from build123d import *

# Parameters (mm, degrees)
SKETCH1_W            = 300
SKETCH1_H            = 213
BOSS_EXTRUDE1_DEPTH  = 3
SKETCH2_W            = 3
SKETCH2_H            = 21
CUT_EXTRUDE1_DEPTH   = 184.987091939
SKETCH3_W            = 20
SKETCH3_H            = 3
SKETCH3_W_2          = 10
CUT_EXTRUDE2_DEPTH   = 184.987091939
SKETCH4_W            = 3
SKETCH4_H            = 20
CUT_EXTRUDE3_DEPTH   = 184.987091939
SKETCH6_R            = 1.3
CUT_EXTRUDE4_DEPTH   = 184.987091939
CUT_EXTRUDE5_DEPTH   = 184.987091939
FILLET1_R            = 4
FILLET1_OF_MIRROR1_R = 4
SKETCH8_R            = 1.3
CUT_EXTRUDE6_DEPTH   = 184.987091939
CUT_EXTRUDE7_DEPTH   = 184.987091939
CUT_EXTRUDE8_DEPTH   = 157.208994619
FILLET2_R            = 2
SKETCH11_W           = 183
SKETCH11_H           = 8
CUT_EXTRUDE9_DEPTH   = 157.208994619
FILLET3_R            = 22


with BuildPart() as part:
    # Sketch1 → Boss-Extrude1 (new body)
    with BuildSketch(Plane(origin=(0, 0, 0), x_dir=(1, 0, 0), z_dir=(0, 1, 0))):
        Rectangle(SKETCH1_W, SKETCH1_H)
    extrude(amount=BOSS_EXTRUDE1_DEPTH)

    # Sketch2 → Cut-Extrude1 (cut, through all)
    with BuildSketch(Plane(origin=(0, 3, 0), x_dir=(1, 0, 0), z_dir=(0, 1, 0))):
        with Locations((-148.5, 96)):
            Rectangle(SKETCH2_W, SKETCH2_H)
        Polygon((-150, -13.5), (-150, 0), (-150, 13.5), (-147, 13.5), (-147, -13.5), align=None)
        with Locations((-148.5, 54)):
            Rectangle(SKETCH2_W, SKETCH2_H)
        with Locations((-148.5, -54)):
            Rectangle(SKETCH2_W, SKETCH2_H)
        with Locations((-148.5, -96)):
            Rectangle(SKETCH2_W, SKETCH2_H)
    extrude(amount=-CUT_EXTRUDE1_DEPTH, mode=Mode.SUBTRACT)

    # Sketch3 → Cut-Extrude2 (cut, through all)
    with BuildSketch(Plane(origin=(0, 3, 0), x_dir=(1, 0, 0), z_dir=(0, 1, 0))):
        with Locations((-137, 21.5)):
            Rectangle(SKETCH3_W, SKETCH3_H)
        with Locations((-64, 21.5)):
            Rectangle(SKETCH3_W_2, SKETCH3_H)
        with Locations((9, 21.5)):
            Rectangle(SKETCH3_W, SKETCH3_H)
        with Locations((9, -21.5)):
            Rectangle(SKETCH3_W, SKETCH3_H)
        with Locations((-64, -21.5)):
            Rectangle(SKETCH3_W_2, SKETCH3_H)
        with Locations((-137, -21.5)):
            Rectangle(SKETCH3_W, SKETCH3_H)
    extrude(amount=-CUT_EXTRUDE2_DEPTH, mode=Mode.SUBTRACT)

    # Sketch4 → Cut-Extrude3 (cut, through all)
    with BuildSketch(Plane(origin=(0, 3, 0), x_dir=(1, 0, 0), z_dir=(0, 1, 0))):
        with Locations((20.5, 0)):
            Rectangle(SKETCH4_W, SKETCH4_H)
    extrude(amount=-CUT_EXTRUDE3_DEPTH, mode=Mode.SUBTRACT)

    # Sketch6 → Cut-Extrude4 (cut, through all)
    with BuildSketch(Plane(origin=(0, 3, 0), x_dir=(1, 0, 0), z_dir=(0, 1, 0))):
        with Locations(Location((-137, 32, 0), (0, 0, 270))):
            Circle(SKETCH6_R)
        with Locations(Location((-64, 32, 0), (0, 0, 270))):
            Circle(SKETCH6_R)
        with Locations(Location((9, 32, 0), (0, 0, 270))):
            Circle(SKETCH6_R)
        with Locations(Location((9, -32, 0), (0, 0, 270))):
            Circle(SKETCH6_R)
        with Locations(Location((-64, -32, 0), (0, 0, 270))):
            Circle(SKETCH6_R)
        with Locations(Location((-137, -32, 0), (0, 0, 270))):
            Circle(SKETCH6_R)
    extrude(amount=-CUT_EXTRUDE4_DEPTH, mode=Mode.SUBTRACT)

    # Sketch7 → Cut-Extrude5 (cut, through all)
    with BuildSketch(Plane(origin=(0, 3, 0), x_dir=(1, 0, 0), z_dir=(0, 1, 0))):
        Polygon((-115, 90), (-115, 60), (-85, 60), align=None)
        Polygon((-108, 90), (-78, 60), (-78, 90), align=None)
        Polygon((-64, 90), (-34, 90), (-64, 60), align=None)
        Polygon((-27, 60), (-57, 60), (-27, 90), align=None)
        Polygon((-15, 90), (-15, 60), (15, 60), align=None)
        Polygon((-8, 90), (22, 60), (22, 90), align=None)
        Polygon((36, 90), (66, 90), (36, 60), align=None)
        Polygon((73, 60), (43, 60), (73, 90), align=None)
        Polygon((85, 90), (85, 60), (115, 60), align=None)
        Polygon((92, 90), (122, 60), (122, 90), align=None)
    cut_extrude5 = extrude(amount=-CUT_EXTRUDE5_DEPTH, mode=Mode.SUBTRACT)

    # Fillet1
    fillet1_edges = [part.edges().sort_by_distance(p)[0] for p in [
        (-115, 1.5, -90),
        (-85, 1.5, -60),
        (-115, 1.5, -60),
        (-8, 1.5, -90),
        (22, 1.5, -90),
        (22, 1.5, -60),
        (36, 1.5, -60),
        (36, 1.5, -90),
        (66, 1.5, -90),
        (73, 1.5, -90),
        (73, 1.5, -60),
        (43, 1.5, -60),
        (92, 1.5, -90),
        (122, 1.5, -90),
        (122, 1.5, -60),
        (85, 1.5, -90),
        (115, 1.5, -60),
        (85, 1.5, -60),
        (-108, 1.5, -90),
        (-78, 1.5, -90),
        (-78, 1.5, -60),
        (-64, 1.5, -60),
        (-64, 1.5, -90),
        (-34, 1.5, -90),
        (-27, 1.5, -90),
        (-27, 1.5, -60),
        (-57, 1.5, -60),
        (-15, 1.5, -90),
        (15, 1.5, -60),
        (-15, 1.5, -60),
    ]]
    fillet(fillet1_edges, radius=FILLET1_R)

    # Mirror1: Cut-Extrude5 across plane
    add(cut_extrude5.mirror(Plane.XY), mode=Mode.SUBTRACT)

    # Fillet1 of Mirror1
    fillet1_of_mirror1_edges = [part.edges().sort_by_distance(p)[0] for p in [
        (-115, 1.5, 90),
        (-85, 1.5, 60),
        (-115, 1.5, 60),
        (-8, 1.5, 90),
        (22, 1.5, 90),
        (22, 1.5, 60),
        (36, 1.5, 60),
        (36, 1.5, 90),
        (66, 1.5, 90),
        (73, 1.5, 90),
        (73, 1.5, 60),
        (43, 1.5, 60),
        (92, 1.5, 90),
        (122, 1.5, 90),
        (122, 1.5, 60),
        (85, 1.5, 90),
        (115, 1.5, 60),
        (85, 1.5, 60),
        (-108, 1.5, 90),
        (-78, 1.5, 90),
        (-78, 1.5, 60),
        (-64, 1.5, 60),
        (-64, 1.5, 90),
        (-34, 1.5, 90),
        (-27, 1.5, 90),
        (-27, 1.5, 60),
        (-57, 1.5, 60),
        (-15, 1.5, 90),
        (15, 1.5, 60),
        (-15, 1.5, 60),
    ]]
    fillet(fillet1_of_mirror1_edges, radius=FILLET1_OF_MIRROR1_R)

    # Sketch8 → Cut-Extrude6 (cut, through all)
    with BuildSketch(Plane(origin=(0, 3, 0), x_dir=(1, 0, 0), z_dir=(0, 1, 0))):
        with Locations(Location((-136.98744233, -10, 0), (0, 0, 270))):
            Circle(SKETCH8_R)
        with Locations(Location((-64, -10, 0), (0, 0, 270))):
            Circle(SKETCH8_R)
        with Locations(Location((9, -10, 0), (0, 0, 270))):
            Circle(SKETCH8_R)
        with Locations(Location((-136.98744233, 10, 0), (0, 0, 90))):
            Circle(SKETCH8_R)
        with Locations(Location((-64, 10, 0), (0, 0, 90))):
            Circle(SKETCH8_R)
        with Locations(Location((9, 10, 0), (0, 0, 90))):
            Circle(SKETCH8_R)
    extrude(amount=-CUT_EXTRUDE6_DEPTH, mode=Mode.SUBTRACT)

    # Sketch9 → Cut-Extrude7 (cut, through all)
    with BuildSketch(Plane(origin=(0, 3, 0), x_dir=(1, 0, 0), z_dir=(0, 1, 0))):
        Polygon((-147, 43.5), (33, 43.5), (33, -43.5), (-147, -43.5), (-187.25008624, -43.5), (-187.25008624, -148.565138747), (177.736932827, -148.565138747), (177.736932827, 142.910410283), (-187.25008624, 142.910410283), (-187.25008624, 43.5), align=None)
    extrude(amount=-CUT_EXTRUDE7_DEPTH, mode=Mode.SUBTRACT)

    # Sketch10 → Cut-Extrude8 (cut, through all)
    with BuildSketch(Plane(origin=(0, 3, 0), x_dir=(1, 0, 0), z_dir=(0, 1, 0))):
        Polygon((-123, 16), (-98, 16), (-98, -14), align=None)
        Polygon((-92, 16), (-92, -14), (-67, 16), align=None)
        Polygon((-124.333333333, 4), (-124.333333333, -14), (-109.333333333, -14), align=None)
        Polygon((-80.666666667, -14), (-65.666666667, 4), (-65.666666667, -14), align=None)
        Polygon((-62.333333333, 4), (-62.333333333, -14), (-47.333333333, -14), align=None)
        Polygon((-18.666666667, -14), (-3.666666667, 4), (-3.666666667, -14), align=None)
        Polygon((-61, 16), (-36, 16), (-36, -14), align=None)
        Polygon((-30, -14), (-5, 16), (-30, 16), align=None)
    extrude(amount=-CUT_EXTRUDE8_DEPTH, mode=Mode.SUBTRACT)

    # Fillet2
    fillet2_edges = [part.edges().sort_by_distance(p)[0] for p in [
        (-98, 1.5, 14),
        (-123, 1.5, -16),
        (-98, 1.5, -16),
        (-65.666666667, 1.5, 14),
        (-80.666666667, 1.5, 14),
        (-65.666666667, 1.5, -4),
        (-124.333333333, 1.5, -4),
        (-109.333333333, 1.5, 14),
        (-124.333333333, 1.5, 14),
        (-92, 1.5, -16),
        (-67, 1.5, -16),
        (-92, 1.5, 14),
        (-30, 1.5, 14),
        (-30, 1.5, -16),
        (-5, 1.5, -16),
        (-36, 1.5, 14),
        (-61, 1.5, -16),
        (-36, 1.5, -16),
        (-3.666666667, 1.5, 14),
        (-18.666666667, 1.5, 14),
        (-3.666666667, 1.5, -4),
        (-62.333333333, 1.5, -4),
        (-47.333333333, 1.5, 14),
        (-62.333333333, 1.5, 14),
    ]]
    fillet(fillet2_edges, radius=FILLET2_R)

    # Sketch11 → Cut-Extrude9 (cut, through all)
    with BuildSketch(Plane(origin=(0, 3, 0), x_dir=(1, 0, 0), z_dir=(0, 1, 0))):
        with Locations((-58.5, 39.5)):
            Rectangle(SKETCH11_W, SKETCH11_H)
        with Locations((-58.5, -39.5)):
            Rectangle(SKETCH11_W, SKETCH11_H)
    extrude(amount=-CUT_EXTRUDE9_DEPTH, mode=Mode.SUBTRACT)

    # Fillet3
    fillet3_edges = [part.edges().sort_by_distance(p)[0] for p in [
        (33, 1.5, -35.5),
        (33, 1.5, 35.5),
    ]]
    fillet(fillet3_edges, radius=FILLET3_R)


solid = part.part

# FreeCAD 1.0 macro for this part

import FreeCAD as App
import Part
import Sketcher
from FreeCAD import Vector
Q = App.Units.Quantity


def edges_at(feature, points):
    """Names of the edges that pass closest to the given points."""
    edges = feature.Shape.Edges
    near = lambda p: min(range(len(edges)), key=lambda i: edges[i].distToShape(Part.Vertex(*p))[0])
    return sorted({f"Edge{near(p) + 1}" for p in points})


def add_polygon(sketch, points):
    """Adds a closed chain of lines whose ends are joined by coincident constraints."""
    first, n = sketch.GeometryCount, len(points)
    for a, b in zip(points, points[1:] + points[:1]):
        sketch.addGeometry(Part.LineSegment(App.Vector(*a, 0), App.Vector(*b, 0)), False)
    for i in range(n):
        sketch.addConstraint(Sketcher.Constraint("Coincident", first + i, 2, first + (i + 1) % n, 1))

doc = App.newDocument("Part")
body = doc.addObject("PartDesign::Body", "Body")

# Sketch on XZ plane
sketch1 = body.newObject("Sketcher::SketchObject", "Sketch")
sketch1.AttachmentSupport = (doc.getObject("XZ_Plane"), [""])
sketch1.MapMode = "FlatFace"
add_polygon(sketch1, [(-150, -106.5), (-150, 106.5), (150, 106.5), (150, -106.5)])  # lines 0-3
sketch1.addConstraint(Sketcher.Constraint("Vertical", 0))
sketch1.addConstraint(Sketcher.Constraint("Horizontal", 1))
sketch1.addConstraint(Sketcher.Constraint("Vertical", 2))
sketch1.addConstraint(Sketcher.Constraint("Horizontal", 3))
sketch1.addConstraint(Sketcher.Constraint("Symmetric", 0, 2, 2, 2, -1, 1))
sketch1.addConstraint(Sketcher.Constraint("DistanceX", 1, 1, 1, 2, Q("300 mm")))
sketch1.addConstraint(Sketcher.Constraint("DistanceY", 0, 1, 0, 2, Q("213 mm")))
pad1 = body.newObject("PartDesign::Pad", "Pad")
pad1.Profile = sketch1
pad1.Length = 3
pad1.Reversed = True

# Sketch on XZ plane
sketch2 = body.newObject("Sketcher::SketchObject", "Sketch001")
sketch2.AttachmentSupport = (doc.getObject("XZ_Plane"), [""])
sketch2.MapMode = "FlatFace"
sketch2.AttachmentOffset = App.Placement(Vector(0, 0, -3), App.Rotation())
add_polygon(sketch2, [(-150, -106.5), (-150, -85.5), (-147, -85.5), (-147, -106.5)])  # lines 0-3
add_polygon(sketch2, [(-150, -13.5), (-150, 13.5), (-147, 13.5), (-147, -13.5)])  # lines 4-7
add_polygon(sketch2, [(-150, -64.5), (-150, -43.5), (-147, -43.5), (-147, -64.5)])  # lines 8-11
add_polygon(sketch2, [(-150, 43.5), (-150, 64.5), (-147, 64.5), (-147, 43.5)])  # lines 12-15
add_polygon(sketch2, [(-150, 85.5), (-150, 106.5), (-147, 106.5), (-147, 85.5)])  # lines 16-19
sketch2.addConstraint(Sketcher.Constraint("Vertical", 0))
sketch2.addConstraint(Sketcher.Constraint("Horizontal", 1))
sketch2.addConstraint(Sketcher.Constraint("Vertical", 2))
sketch2.addConstraint(Sketcher.Constraint("Horizontal", 3))
sketch2.addConstraint(Sketcher.Constraint("Vertical", 4))
sketch2.addConstraint(Sketcher.Constraint("Horizontal", 5))
sketch2.addConstraint(Sketcher.Constraint("Vertical", 6))
sketch2.addConstraint(Sketcher.Constraint("Horizontal", 7))
sketch2.addConstraint(Sketcher.Constraint("Vertical", 8))
sketch2.addConstraint(Sketcher.Constraint("Horizontal", 9))
sketch2.addConstraint(Sketcher.Constraint("Vertical", 10))
sketch2.addConstraint(Sketcher.Constraint("Horizontal", 11))
sketch2.addConstraint(Sketcher.Constraint("Vertical", 12))
sketch2.addConstraint(Sketcher.Constraint("Horizontal", 13))
sketch2.addConstraint(Sketcher.Constraint("Vertical", 14))
sketch2.addConstraint(Sketcher.Constraint("Horizontal", 15))
sketch2.addConstraint(Sketcher.Constraint("Vertical", 16))
sketch2.addConstraint(Sketcher.Constraint("Horizontal", 17))
sketch2.addConstraint(Sketcher.Constraint("Vertical", 18))
sketch2.addConstraint(Sketcher.Constraint("Horizontal", 19))
sketch2.addConstraint(Sketcher.Constraint("Symmetric", 11, 2, 12, 2, -1))
sketch2.addConstraint(Sketcher.Constraint("Symmetric", 9, 2, 14, 2, -1))
sketch2.addConstraint(Sketcher.Constraint("Symmetric", 3, 2, 16, 2, -1))
sketch2.addConstraint(Sketcher.Constraint("Symmetric", 1, 2, 18, 2, -1))
sketch2.addConstraint(Sketcher.Constraint("Vertical", 3, 2, 4, 2))
sketch2.addConstraint(Sketcher.Constraint("Vertical", 2, 2, 5, 2))
sketch2.addConstraint(Sketcher.Constraint("Vertical", 7, 2, 8, 2))
sketch2.addConstraint(Sketcher.Constraint("Vertical", 6, 2, 9, 2))
sketch2.addConstraint(Sketcher.Constraint("Equal", 2, 8))
sketch2.addConstraint(Sketcher.Constraint("DistanceX", 1, 1, 1, 2, Q("3 mm")))
sketch2.addConstraint(Sketcher.Constraint("DistanceY", 0, 1, 0, 2, Q("21 mm")))
sketch2.addConstraint(Sketcher.Constraint("DistanceY", 4, 1, 4, 2, Q("27 mm")))
sketch2.addConstraint(Sketcher.Constraint("DistanceX", 0, 2, -1, 1, Q("150 mm")))
sketch2.addConstraint(Sketcher.Constraint("DistanceY", 0, 2, 4, 2, Q("99 mm")))
sketch2.addConstraint(Sketcher.Constraint("DistanceY", 8, 2, 7, 2, Q("30 mm")))
sketch2.addConstraint(Sketcher.Constraint("DistanceY", 4, 2, 12, 2, Q("51 mm")))
pocket1 = body.newObject("PartDesign::Pocket", "Pocket")
pocket1.Profile = sketch2
pocket1.Type = "ThroughAll"
pocket1.Reversed = True

# Sketch on XZ plane
sketch3 = body.newObject("Sketcher::SketchObject", "Sketch002")
sketch3.AttachmentSupport = (doc.getObject("XZ_Plane"), [""])
sketch3.MapMode = "FlatFace"
sketch3.AttachmentOffset = App.Placement(Vector(0, 0, -3), App.Rotation())
add_polygon(sketch3, [(-147, -23), (-147, -20), (-127, -20), (-127, -23)])  # lines 0-3
add_polygon(sketch3, [(-69, -23), (-69, -20), (-59, -20), (-59, -23)])  # lines 4-7
add_polygon(sketch3, [(-1, -23), (-1, -20), (19, -20), (19, -23)])  # lines 8-11
add_polygon(sketch3, [(-1, 20), (-1, 23), (19, 23), (19, 20)])  # lines 12-15
add_polygon(sketch3, [(-69, 20), (-69, 23), (-59, 23), (-59, 20)])  # lines 16-19
add_polygon(sketch3, [(-147, 20), (-147, 23), (-127, 23), (-127, 20)])  # lines 20-23
sketch3.addConstraint(Sketcher.Constraint("Vertical", 0))
sketch3.addConstraint(Sketcher.Constraint("Horizontal", 1))
sketch3.addConstraint(Sketcher.Constraint("Vertical", 2))
sketch3.addConstraint(Sketcher.Constraint("Horizontal", 3))
sketch3.addConstraint(Sketcher.Constraint("Vertical", 4))
sketch3.addConstraint(Sketcher.Constraint("Horizontal", 5))
sketch3.addConstraint(Sketcher.Constraint("Vertical", 6))
sketch3.addConstraint(Sketcher.Constraint("Horizontal", 7))
sketch3.addConstraint(Sketcher.Constraint("Vertical", 8))
sketch3.addConstraint(Sketcher.Constraint("Horizontal", 9))
sketch3.addConstraint(Sketcher.Constraint("Vertical", 10))
sketch3.addConstraint(Sketcher.Constraint("Horizontal", 11))
sketch3.addConstraint(Sketcher.Constraint("Vertical", 12))
sketch3.addConstraint(Sketcher.Constraint("Horizontal", 13))
sketch3.addConstraint(Sketcher.Constraint("Vertical", 14))
sketch3.addConstraint(Sketcher.Constraint("Horizontal", 15))
sketch3.addConstraint(Sketcher.Constraint("Vertical", 16))
sketch3.addConstraint(Sketcher.Constraint("Horizontal", 17))
sketch3.addConstraint(Sketcher.Constraint("Vertical", 18))
sketch3.addConstraint(Sketcher.Constraint("Horizontal", 19))
sketch3.addConstraint(Sketcher.Constraint("Vertical", 20))
sketch3.addConstraint(Sketcher.Constraint("Horizontal", 21))
sketch3.addConstraint(Sketcher.Constraint("Vertical", 22))
sketch3.addConstraint(Sketcher.Constraint("Horizontal", 23))
sketch3.addConstraint(Sketcher.Constraint("Symmetric", 11, 2, 12, 2, -1))
sketch3.addConstraint(Sketcher.Constraint("Symmetric", 9, 2, 14, 2, -1))
sketch3.addConstraint(Sketcher.Constraint("Symmetric", 7, 2, 16, 2, -1))
sketch3.addConstraint(Sketcher.Constraint("Symmetric", 5, 2, 18, 2, -1))
sketch3.addConstraint(Sketcher.Constraint("Symmetric", 3, 2, 20, 2, -1))
sketch3.addConstraint(Sketcher.Constraint("Symmetric", 1, 2, 22, 2, -1))
sketch3.addConstraint(Sketcher.Constraint("Horizontal", 1, 2, 4, 2))
sketch3.addConstraint(Sketcher.Constraint("Horizontal", 3, 2, 6, 2))
sketch3.addConstraint(Sketcher.Constraint("Horizontal", 5, 2, 8, 2))
sketch3.addConstraint(Sketcher.Constraint("Horizontal", 7, 2, 10, 2))
sketch3.addConstraint(Sketcher.Constraint("Equal", 3, 9))
sketch3.addConstraint(Sketcher.Constraint("DistanceX", 1, 1, 1, 2, Q("20 mm")))
sketch3.addConstraint(Sketcher.Constraint("DistanceX", 5, 1, 5, 2, Q("10 mm")))
sketch3.addConstraint(Sketcher.Constraint("DistanceY", 0, 1, 0, 2, Q("3 mm")))
sketch3.addConstraint(Sketcher.Constraint("DistanceX", 0, 2, -1, 1, Q("147 mm")))
sketch3.addConstraint(Sketcher.Constraint("DistanceY", 0, 2, -1, 1, Q("20 mm")))
sketch3.addConstraint(Sketcher.Constraint("DistanceX", 4, 2, -1, 1, Q("69 mm")))
sketch3.addConstraint(Sketcher.Constraint("DistanceX", 8, 2, -1, 1, Q("1 mm")))
pocket2 = body.newObject("PartDesign::Pocket", "Pocket001")
pocket2.Profile = sketch3
pocket2.Type = "ThroughAll"
pocket2.Reversed = True

# Sketch on XZ plane
sketch4 = body.newObject("Sketcher::SketchObject", "Sketch003")
sketch4.AttachmentSupport = (doc.getObject("XZ_Plane"), [""])
sketch4.MapMode = "FlatFace"
sketch4.AttachmentOffset = App.Placement(Vector(0, 0, -3), App.Rotation())
add_polygon(sketch4, [(19, -10), (19, 10), (22, 10), (22, -10)])  # lines 0-3
sketch4.addConstraint(Sketcher.Constraint("Vertical", 0))
sketch4.addConstraint(Sketcher.Constraint("Horizontal", 1))
sketch4.addConstraint(Sketcher.Constraint("Vertical", 2))
sketch4.addConstraint(Sketcher.Constraint("Horizontal", 3))
sketch4.addConstraint(Sketcher.Constraint("DistanceX", 1, 1, 1, 2, Q("3 mm")))
sketch4.addConstraint(Sketcher.Constraint("DistanceY", 0, 1, 0, 2, Q("20 mm")))
sketch4.addConstraint(Sketcher.Constraint("DistanceX", -1, 1, 0, 2, Q("19 mm")))
sketch4.addConstraint(Sketcher.Constraint("DistanceY", -1, 1, 0, 2, Q("10 mm")))
pocket3 = body.newObject("PartDesign::Pocket", "Pocket002")
pocket3.Profile = sketch4
pocket3.Type = "ThroughAll"
pocket3.Reversed = True

# Sketch on XZ plane
sketch5 = body.newObject("Sketcher::SketchObject", "Sketch004")
sketch5.AttachmentSupport = (doc.getObject("XZ_Plane"), [""])
sketch5.MapMode = "FlatFace"
sketch5.AttachmentOffset = App.Placement(Vector(0, 0, -3), App.Rotation())
sketch5.addGeometry(Part.Circle(Vector(-137, -32, 0), Vector(0, 0, 1), 1.3), False)
sketch5.addGeometry(Part.Circle(Vector(-64, -32, 0), Vector(0, 0, 1), 1.3), False)
sketch5.addGeometry(Part.Circle(Vector(9, -32, 0), Vector(0, 0, 1), 1.3), False)
sketch5.addGeometry(Part.Circle(Vector(9, 32, 0), Vector(0, 0, 1), 1.3), False)
sketch5.addGeometry(Part.Circle(Vector(-64, 32, 0), Vector(0, 0, 1), 1.3), False)
sketch5.addGeometry(Part.Circle(Vector(-137, 32, 0), Vector(0, 0, 1), 1.3), False)
sketch5.addConstraint(Sketcher.Constraint("Equal", 0, 1))
sketch5.addConstraint(Sketcher.Constraint("Equal", 1, 2))
sketch5.addConstraint(Sketcher.Constraint("Equal", 2, 3))
sketch5.addConstraint(Sketcher.Constraint("Equal", 3, 4))
sketch5.addConstraint(Sketcher.Constraint("Equal", 4, 5))
sketch5.addConstraint(Sketcher.Constraint("Symmetric", 2, 3, 3, 3, -1))
sketch5.addConstraint(Sketcher.Constraint("Symmetric", 1, 3, 4, 3, -1))
sketch5.addConstraint(Sketcher.Constraint("Symmetric", 0, 3, 5, 3, -1))
sketch5.addConstraint(Sketcher.Constraint("Horizontal", 0, 3, 1, 3))
sketch5.addConstraint(Sketcher.Constraint("Horizontal", 1, 3, 2, 3))
sketch5.addConstraint(Sketcher.Constraint("Diameter", 0, Q("2.6 mm")))
sketch5.addConstraint(Sketcher.Constraint("DistanceX", 0, 3, -1, 1, Q("137 mm")))
sketch5.addConstraint(Sketcher.Constraint("DistanceY", 0, 3, -1, 1, Q("32 mm")))
sketch5.addConstraint(Sketcher.Constraint("DistanceX", 1, 3, -1, 1, Q("64 mm")))
sketch5.addConstraint(Sketcher.Constraint("DistanceX", -1, 1, 2, 3, Q("9 mm")))
pocket4 = body.newObject("PartDesign::Pocket", "Pocket003")
pocket4.Profile = sketch5
pocket4.Type = "ThroughAll"
pocket4.Reversed = True

# Sketch on XZ plane
sketch6 = body.newObject("Sketcher::SketchObject", "Sketch005")
sketch6.AttachmentSupport = (doc.getObject("XZ_Plane"), [""])
sketch6.MapMode = "FlatFace"
sketch6.AttachmentOffset = App.Placement(Vector(0, 0, -3), App.Rotation())
add_polygon(sketch6, [(-115, -90), (-115, -60), (-85, -60)])  # lines 0-2
add_polygon(sketch6, [(-108, -90), (-78, -60), (-78, -90)])  # lines 3-5
add_polygon(sketch6, [(-34, -90), (-64, -90), (-64, -60)])  # lines 6-8
add_polygon(sketch6, [(-57, -60), (-27, -60), (-27, -90)])  # lines 9-11
add_polygon(sketch6, [(-15, -90), (-15, -60), (15, -60)])  # lines 12-14
add_polygon(sketch6, [(-8, -90), (22, -60), (22, -90)])  # lines 15-17
add_polygon(sketch6, [(66, -90), (36, -90), (36, -60)])  # lines 18-20
add_polygon(sketch6, [(43, -60), (73, -60), (73, -90)])  # lines 21-23
add_polygon(sketch6, [(85, -90), (85, -60), (115, -60)])  # lines 24-26
add_polygon(sketch6, [(92, -90), (122, -60), (122, -90)])  # lines 27-29
sketch6.addConstraint(Sketcher.Constraint("Vertical", 0))
sketch6.addConstraint(Sketcher.Constraint("Horizontal", 1))
sketch6.addConstraint(Sketcher.Constraint("Vertical", 4))
sketch6.addConstraint(Sketcher.Constraint("Horizontal", 5))
sketch6.addConstraint(Sketcher.Constraint("Horizontal", 6))
sketch6.addConstraint(Sketcher.Constraint("Vertical", 7))
sketch6.addConstraint(Sketcher.Constraint("Horizontal", 9))
sketch6.addConstraint(Sketcher.Constraint("Vertical", 10))
sketch6.addConstraint(Sketcher.Constraint("Vertical", 12))
sketch6.addConstraint(Sketcher.Constraint("Horizontal", 13))
sketch6.addConstraint(Sketcher.Constraint("Vertical", 16))
sketch6.addConstraint(Sketcher.Constraint("Horizontal", 17))
sketch6.addConstraint(Sketcher.Constraint("Horizontal", 18))
sketch6.addConstraint(Sketcher.Constraint("Vertical", 19))
sketch6.addConstraint(Sketcher.Constraint("Horizontal", 21))
sketch6.addConstraint(Sketcher.Constraint("Vertical", 22))
sketch6.addConstraint(Sketcher.Constraint("Vertical", 24))
sketch6.addConstraint(Sketcher.Constraint("Horizontal", 25))
sketch6.addConstraint(Sketcher.Constraint("Vertical", 28))
sketch6.addConstraint(Sketcher.Constraint("Horizontal", 29))
sketch6.addConstraint(Sketcher.Constraint("Symmetric", 1, 2, 24, 2, -2))
sketch6.addConstraint(Sketcher.Constraint("Parallel", 2, 3))
sketch6.addConstraint(Sketcher.Constraint("Perpendicular", 3, 8))
sketch6.addConstraint(Sketcher.Constraint("Parallel", 8, 11))
sketch6.addConstraint(Sketcher.Constraint("Perpendicular", 11, 14))
sketch6.addConstraint(Sketcher.Constraint("Parallel", 14, 15))
sketch6.addConstraint(Sketcher.Constraint("Perpendicular", 15, 20))
sketch6.addConstraint(Sketcher.Constraint("Parallel", 20, 23))
sketch6.addConstraint(Sketcher.Constraint("Perpendicular", 23, 26))
sketch6.addConstraint(Sketcher.Constraint("Parallel", 26, 27))
sketch6.addConstraint(Sketcher.Constraint("Horizontal", 1, 2, 3, 2))
sketch6.addConstraint(Sketcher.Constraint("Horizontal", 2, 2, 4, 2))
sketch6.addConstraint(Sketcher.Constraint("Horizontal", 5, 2, 6, 2))
sketch6.addConstraint(Sketcher.Constraint("Horizontal", 3, 2, 7, 2))
sketch6.addConstraint(Sketcher.Constraint("Horizontal", 7, 2, 9, 2))
sketch6.addConstraint(Sketcher.Constraint("Horizontal", 8, 2, 10, 2))
sketch6.addConstraint(Sketcher.Constraint("Horizontal", 11, 2, 12, 2))
sketch6.addConstraint(Sketcher.Constraint("Horizontal", 10, 2, 14, 2))
sketch6.addConstraint(Sketcher.Constraint("Horizontal", 13, 2, 15, 2))
sketch6.addConstraint(Sketcher.Constraint("Horizontal", 14, 2, 16, 2))
sketch6.addConstraint(Sketcher.Constraint("Horizontal", 17, 2, 18, 2))
sketch6.addConstraint(Sketcher.Constraint("Horizontal", 15, 2, 19, 2))
sketch6.addConstraint(Sketcher.Constraint("Horizontal", 19, 2, 21, 2))
sketch6.addConstraint(Sketcher.Constraint("Horizontal", 20, 2, 22, 2))
sketch6.addConstraint(Sketcher.Constraint("Horizontal", 22, 2, 26, 2))
sketch6.addConstraint(Sketcher.Constraint("Horizontal", 25, 2, 27, 2))
sketch6.addConstraint(Sketcher.Constraint("Horizontal", 26, 2, 28, 2))
sketch6.addConstraint(Sketcher.Constraint("Equal", 5, 6))
sketch6.addConstraint(Sketcher.Constraint("DistanceX", 1, 1, 1, 2, Q("30 mm")))
sketch6.addConstraint(Sketcher.Constraint("DistanceX", 0, 2, -1, 1, Q("115 mm")))
sketch6.addConstraint(Sketcher.Constraint("DistanceY", 0, 2, -1, 1, Q("60 mm")))
sketch6.addConstraint(Sketcher.Constraint("DistanceX", 3, 2, -1, 1, Q("78 mm")))
sketch6.addConstraint(Sketcher.Constraint("DistanceX", 6, 2, -1, 1, Q("64 mm")))
sketch6.addConstraint(Sketcher.Constraint("DistanceX", 9, 2, -1, 1, Q("27 mm")))
sketch6.addConstraint(Sketcher.Constraint("DistanceX", 12, 2, -1, 1, Q("15 mm")))
sketch6.addConstraint(Sketcher.Constraint("DistanceX", -1, 1, 15, 2, Q("22 mm")))
sketch6.addConstraint(Sketcher.Constraint("DistanceX", -1, 1, 18, 2, Q("36 mm")))
sketch6.addConstraint(Sketcher.Constraint("DistanceX", -1, 1, 21, 2, Q("73 mm")))
sketch6.addConstraint(Sketcher.Constraint("DistanceX", -1, 1, 27, 2, Q("122 mm")))
pocket5 = body.newObject("PartDesign::Pocket", "Pocket004")
pocket5.Profile = sketch6
pocket5.Type = "ThroughAll"
pocket5.Reversed = True
doc.recompute()

fillet = body.newObject("PartDesign::Fillet", "Fillet")
fillet.Base = (pocket5, edges_at(pocket5, [
    (-115, 1.5, -90),
    (-85, 1.5, -60),
    (-115, 1.5, -60),
    (-8, 1.5, -90),
    (22, 1.5, -90),
    (22, 1.5, -60),
    (36, 1.5, -60),
    (36, 1.5, -90),
    (66, 1.5, -90),
    (73, 1.5, -90),
    (73, 1.5, -60),
    (43, 1.5, -60),
    (92, 1.5, -90),
    (122, 1.5, -90),
    (122, 1.5, -60),
    (85, 1.5, -90),
    (115, 1.5, -60),
    (85, 1.5, -60),
    (-108, 1.5, -90),
    (-78, 1.5, -90),
    (-78, 1.5, -60),
    (-64, 1.5, -60),
    (-64, 1.5, -90),
    (-34, 1.5, -90),
    (-27, 1.5, -90),
    (-27, 1.5, -60),
    (-57, 1.5, -60),
    (-15, 1.5, -90),
    (15, 1.5, -60),
    (-15, 1.5, -60),
]))
fillet.Radius = 4
doc.recompute()

mirrored = body.newObject("PartDesign::Mirrored", "Mirrored")
mirrored.Originals = [pocket5]
mirrored.MirrorPlane = (doc.getObject("XY_Plane"), [""])
body.Tip = mirrored
doc.recompute()

fillet2 = body.newObject("PartDesign::Fillet", "Fillet001")
fillet2.Base = (mirrored, edges_at(mirrored, [
    (-115, 1.5, 90),
    (-85, 1.5, 60),
    (-115, 1.5, 60),
    (-8, 1.5, 90),
    (22, 1.5, 90),
    (22, 1.5, 60),
    (36, 1.5, 60),
    (36, 1.5, 90),
    (66, 1.5, 90),
    (73, 1.5, 90),
    (73, 1.5, 60),
    (43, 1.5, 60),
    (92, 1.5, 90),
    (122, 1.5, 90),
    (122, 1.5, 60),
    (85, 1.5, 90),
    (115, 1.5, 60),
    (85, 1.5, 60),
    (-108, 1.5, 90),
    (-78, 1.5, 90),
    (-78, 1.5, 60),
    (-64, 1.5, 60),
    (-64, 1.5, 90),
    (-34, 1.5, 90),
    (-27, 1.5, 90),
    (-27, 1.5, 60),
    (-57, 1.5, 60),
    (-15, 1.5, 90),
    (15, 1.5, 60),
    (-15, 1.5, 60),
]))
fillet2.Radius = 4

# Sketch on XZ plane
sketch7 = body.newObject("Sketcher::SketchObject", "Sketch006")
sketch7.AttachmentSupport = (doc.getObject("XZ_Plane"), [""])
sketch7.MapMode = "FlatFace"
sketch7.AttachmentOffset = App.Placement(Vector(0, 0, -3), App.Rotation())
sketch7.addGeometry(Part.Circle(Vector(-136.987442, 10, 0), Vector(0, 0, 1), 1.3), False)
sketch7.addGeometry(Part.Circle(Vector(-64, 10, 0), Vector(0, 0, 1), 1.3), False)
sketch7.addGeometry(Part.Circle(Vector(9, 10, 0), Vector(0, 0, 1), 1.3), False)
sketch7.addGeometry(Part.Circle(Vector(-136.987442, -10, 0), Vector(0, 0, 1), 1.3), False)
sketch7.addGeometry(Part.Circle(Vector(-64, -10, 0), Vector(0, 0, 1), 1.3), False)
sketch7.addGeometry(Part.Circle(Vector(9, -10, 0), Vector(0, 0, 1), 1.3), False)
sketch7.addConstraint(Sketcher.Constraint("Equal", 0, 1))
sketch7.addConstraint(Sketcher.Constraint("Equal", 1, 2))
sketch7.addConstraint(Sketcher.Constraint("Equal", 2, 3))
sketch7.addConstraint(Sketcher.Constraint("Equal", 3, 4))
sketch7.addConstraint(Sketcher.Constraint("Equal", 4, 5))
sketch7.addConstraint(Sketcher.Constraint("Symmetric", 0, 3, 3, 3, -1))
sketch7.addConstraint(Sketcher.Constraint("Symmetric", 1, 3, 4, 3, -1))
sketch7.addConstraint(Sketcher.Constraint("Symmetric", 2, 3, 5, 3, -1))
sketch7.addConstraint(Sketcher.Constraint("Horizontal", 0, 3, 1, 3))
sketch7.addConstraint(Sketcher.Constraint("Horizontal", 1, 3, 2, 3))
sketch7.addConstraint(Sketcher.Constraint("Diameter", 0, Q("2.6 mm")))
sketch7.addConstraint(Sketcher.Constraint("DistanceY", -1, 1, 0, 3, Q("10 mm")))
sketch7.addConstraint(Sketcher.Constraint("DistanceX", 1, 3, -1, 1, Q("64 mm")))
sketch7.addConstraint(Sketcher.Constraint("DistanceX", -1, 1, 2, 3, Q("9 mm")))
sketch7.addConstraint(Sketcher.Constraint("DistanceX", 0, 3, -1, 1, Q("136.987442 mm")))
pocket6 = body.newObject("PartDesign::Pocket", "Pocket005")
pocket6.Profile = sketch7
pocket6.Type = "ThroughAll"
pocket6.Reversed = True

# Sketch on XZ plane
sketch8 = body.newObject("Sketcher::SketchObject", "Sketch007")
sketch8.AttachmentSupport = (doc.getObject("XZ_Plane"), [""])
sketch8.MapMode = "FlatFace"
sketch8.AttachmentOffset = App.Placement(Vector(0, 0, -3), App.Rotation())
add_polygon(sketch8, [(33, -43.5), (33, 43.5), (-187.250086, 43.5), (-187.250086, 148.565139), (177.736933, 148.565139), (177.736933, -142.91041), (-187.250086, -142.91041), (-187.250086, -43.5)])  # lines 0-7
sketch8.addConstraint(Sketcher.Constraint("Vertical", 0))
sketch8.addConstraint(Sketcher.Constraint("Horizontal", 1))
sketch8.addConstraint(Sketcher.Constraint("Vertical", 2))
sketch8.addConstraint(Sketcher.Constraint("Horizontal", 3))
sketch8.addConstraint(Sketcher.Constraint("Vertical", 4))
sketch8.addConstraint(Sketcher.Constraint("Horizontal", 5))
sketch8.addConstraint(Sketcher.Constraint("Vertical", 6))
sketch8.addConstraint(Sketcher.Constraint("Horizontal", 7))
sketch8.addConstraint(Sketcher.Constraint("Symmetric", 1, 2, 6, 2, -1))
sketch8.addConstraint(Sketcher.Constraint("DistanceY", 0, 1, 0, 2, Q("87 mm")))
sketch8.addConstraint(Sketcher.Constraint("DistanceX", -1, 1, 0, 2, Q("33 mm")))
sketch8.addConstraint(Sketcher.Constraint("DistanceX", 3, 1, 3, 2, Q("364.987019 mm")))
sketch8.addConstraint(Sketcher.Constraint("DistanceY", 2, 1, 2, 2, Q("105.065139 mm")))
sketch8.addConstraint(Sketcher.Constraint("DistanceY", 4, 2, 4, 1, Q("291.475549 mm")))
sketch8.addConstraint(Sketcher.Constraint("DistanceX", 1, 2, 1, 1, Q("220.250086 mm")))
pocket7 = body.newObject("PartDesign::Pocket", "Pocket006")
pocket7.Profile = sketch8
pocket7.Type = "ThroughAll"
pocket7.Reversed = True

# Sketch on XZ plane
sketch9 = body.newObject("Sketcher::SketchObject", "Sketch008")
sketch9.AttachmentSupport = (doc.getObject("XZ_Plane"), [""])
sketch9.MapMode = "FlatFace"
sketch9.AttachmentOffset = App.Placement(Vector(0, 0, -3), App.Rotation())
add_polygon(sketch9, [(-98, -16), (-123, -16), (-98, 14)])  # lines 0-2
add_polygon(sketch9, [(-92, -16), (-92, 14), (-67, -16)])  # lines 3-5
add_polygon(sketch9, [(-124.333333, -4), (-124.333333, 14), (-109.333333, 14)])  # lines 6-8
add_polygon(sketch9, [(-65.666667, -4), (-80.666667, 14), (-65.666667, 14)])  # lines 9-11
add_polygon(sketch9, [(-62.333333, -4), (-62.333333, 14), (-47.333333, 14)])  # lines 12-14
add_polygon(sketch9, [(-3.666667, -4), (-18.666667, 14), (-3.666667, 14)])  # lines 15-17
add_polygon(sketch9, [(-36, -16), (-61, -16), (-36, 14)])  # lines 18-20
add_polygon(sketch9, [(-30, 14), (-5, -16), (-30, -16)])  # lines 21-23
sketch9.addConstraint(Sketcher.Constraint("Horizontal", 0))
sketch9.addConstraint(Sketcher.Constraint("Vertical", 2))
sketch9.addConstraint(Sketcher.Constraint("Vertical", 3))
sketch9.addConstraint(Sketcher.Constraint("Horizontal", 5))
sketch9.addConstraint(Sketcher.Constraint("Vertical", 6))
sketch9.addConstraint(Sketcher.Constraint("Horizontal", 7))
sketch9.addConstraint(Sketcher.Constraint("Horizontal", 10))
sketch9.addConstraint(Sketcher.Constraint("Vertical", 11))
sketch9.addConstraint(Sketcher.Constraint("Vertical", 12))
sketch9.addConstraint(Sketcher.Constraint("Horizontal", 13))
sketch9.addConstraint(Sketcher.Constraint("Horizontal", 16))
sketch9.addConstraint(Sketcher.Constraint("Vertical", 17))
sketch9.addConstraint(Sketcher.Constraint("Horizontal", 18))
sketch9.addConstraint(Sketcher.Constraint("Vertical", 20))
sketch9.addConstraint(Sketcher.Constraint("Horizontal", 22))
sketch9.addConstraint(Sketcher.Constraint("Vertical", 23))
sketch9.addConstraint(Sketcher.Constraint("Parallel", 1, 8))
sketch9.addConstraint(Sketcher.Constraint("Parallel", 4, 9))
sketch9.addConstraint(Sketcher.Constraint("Parallel", 8, 14))
sketch9.addConstraint(Sketcher.Constraint("Parallel", 9, 15))
sketch9.addConstraint(Sketcher.Constraint("Parallel", 14, 19))
sketch9.addConstraint(Sketcher.Constraint("Parallel", 15, 21))
sketch9.addConstraint(Sketcher.Constraint("Horizontal", 1, 2, 3, 2))
sketch9.addConstraint(Sketcher.Constraint("Horizontal", 2, 2, 4, 2))
sketch9.addConstraint(Sketcher.Constraint("Horizontal", 3, 2, 6, 2))
sketch9.addConstraint(Sketcher.Constraint("Horizontal", 7, 2, 9, 2))
sketch9.addConstraint(Sketcher.Constraint("Horizontal", 8, 2, 11, 2))
sketch9.addConstraint(Sketcher.Constraint("Horizontal", 10, 2, 12, 2))
sketch9.addConstraint(Sketcher.Constraint("Horizontal", 11, 2, 14, 2))
sketch9.addConstraint(Sketcher.Constraint("Horizontal", 13, 2, 15, 2))
sketch9.addConstraint(Sketcher.Constraint("Horizontal", 14, 2, 17, 2))
sketch9.addConstraint(Sketcher.Constraint("Horizontal", 5, 2, 18, 2))
sketch9.addConstraint(Sketcher.Constraint("Horizontal", 16, 2, 19, 2))
sketch9.addConstraint(Sketcher.Constraint("Horizontal", 20, 2, 21, 2))
sketch9.addConstraint(Sketcher.Constraint("Horizontal", 19, 2, 23, 2))
sketch9.addConstraint(Sketcher.Constraint("Equal", 0, 5))
sketch9.addConstraint(Sketcher.Constraint("DistanceX", 0, 2, 0, 1, Q("25 mm")))
sketch9.addConstraint(Sketcher.Constraint("DistanceX", 7, 1, 7, 2, Q("15 mm")))
sketch9.addConstraint(Sketcher.Constraint("DistanceY", 2, 2, 2, 1, Q("30 mm")))
sketch9.addConstraint(Sketcher.Constraint("DistanceX", 0, 2, -1, 1, Q("123 mm")))
sketch9.addConstraint(Sketcher.Constraint("DistanceY", 0, 2, -1, 1, Q("16 mm")))
sketch9.addConstraint(Sketcher.Constraint("DistanceX", 3, 2, -1, 1, Q("92 mm")))
sketch9.addConstraint(Sketcher.Constraint("DistanceX", 18, 2, -1, 1, Q("61 mm")))
sketch9.addConstraint(Sketcher.Constraint("DistanceX", 21, 2, -1, 1, Q("5 mm")))
sketch9.addConstraint(Sketcher.Constraint("DistanceX", 10, 2, 15, 2, Q("47 mm")))
sketch9.addConstraint(Sketcher.Constraint("DistanceX", 6, 2, -1, 1, Q("124.333333 mm")))
sketch9.addConstraint(Sketcher.Constraint("DistanceX", 9, 2, -1, 1, Q("80.666667 mm")))
sketch9.addConstraint(Sketcher.Constraint("DistanceX", 12, 2, -1, 1, Q("62.333333 mm")))
pocket8 = body.newObject("PartDesign::Pocket", "Pocket007")
pocket8.Profile = sketch9
pocket8.Type = "ThroughAll"
pocket8.Reversed = True
doc.recompute()

fillet3 = body.newObject("PartDesign::Fillet", "Fillet002")
fillet3.Base = (pocket8, edges_at(pocket8, [
    (-98, 1.5, 14),
    (-123, 1.5, -16),
    (-98, 1.5, -16),
    (-65.667, 1.5, 14),
    (-80.667, 1.5, 14),
    (-65.667, 1.5, -4),
    (-124.333, 1.5, -4),
    (-109.333, 1.5, 14),
    (-124.333, 1.5, 14),
    (-92, 1.5, -16),
    (-67, 1.5, -16),
    (-92, 1.5, 14),
    (-30, 1.5, 14),
    (-30, 1.5, -16),
    (-5, 1.5, -16),
    (-36, 1.5, 14),
    (-61, 1.5, -16),
    (-36, 1.5, -16),
    (-3.667, 1.5, 14),
    (-18.667, 1.5, 14),
    (-3.667, 1.5, -4),
    (-62.333, 1.5, -4),
    (-47.333, 1.5, 14),
    (-62.333, 1.5, 14),
]))
fillet3.Radius = 2

# Sketch on XZ plane
sketch10 = body.newObject("Sketcher::SketchObject", "Sketch009")
sketch10.AttachmentSupport = (doc.getObject("XZ_Plane"), [""])
sketch10.MapMode = "FlatFace"
sketch10.AttachmentOffset = App.Placement(Vector(0, 0, -3), App.Rotation())
add_polygon(sketch10, [(-150, -43.5), (-150, -35.5), (33, -35.5), (33, -43.5)])  # lines 0-3
add_polygon(sketch10, [(-150, 35.5), (-150, 43.5), (33, 43.5), (33, 35.5)])  # lines 4-7
sketch10.addConstraint(Sketcher.Constraint("Vertical", 0))
sketch10.addConstraint(Sketcher.Constraint("Horizontal", 1))
sketch10.addConstraint(Sketcher.Constraint("Vertical", 2))
sketch10.addConstraint(Sketcher.Constraint("Horizontal", 3))
sketch10.addConstraint(Sketcher.Constraint("Vertical", 4))
sketch10.addConstraint(Sketcher.Constraint("Horizontal", 5))
sketch10.addConstraint(Sketcher.Constraint("Vertical", 6))
sketch10.addConstraint(Sketcher.Constraint("Horizontal", 7))
sketch10.addConstraint(Sketcher.Constraint("Symmetric", 3, 2, 4, 2, -1))
sketch10.addConstraint(Sketcher.Constraint("Symmetric", 1, 2, 6, 2, -1))
sketch10.addConstraint(Sketcher.Constraint("DistanceX", 1, 1, 1, 2, Q("183 mm")))
sketch10.addConstraint(Sketcher.Constraint("DistanceY", 0, 1, 0, 2, Q("8 mm")))
sketch10.addConstraint(Sketcher.Constraint("DistanceX", 0, 2, -1, 1, Q("150 mm")))
sketch10.addConstraint(Sketcher.Constraint("DistanceY", 0, 2, 4, 2, Q("79 mm")))
pocket9 = body.newObject("PartDesign::Pocket", "Pocket008")
pocket9.Profile = sketch10
pocket9.Type = "ThroughAll"
pocket9.Reversed = True
doc.recompute()

fillet4 = body.newObject("PartDesign::Fillet", "Fillet003")
fillet4.Base = (pocket9, edges_at(pocket9, [(33, 1.5, -35.5), (33, 1.5, 35.5)]))
fillet4.Radius = 22

doc.recompute()
